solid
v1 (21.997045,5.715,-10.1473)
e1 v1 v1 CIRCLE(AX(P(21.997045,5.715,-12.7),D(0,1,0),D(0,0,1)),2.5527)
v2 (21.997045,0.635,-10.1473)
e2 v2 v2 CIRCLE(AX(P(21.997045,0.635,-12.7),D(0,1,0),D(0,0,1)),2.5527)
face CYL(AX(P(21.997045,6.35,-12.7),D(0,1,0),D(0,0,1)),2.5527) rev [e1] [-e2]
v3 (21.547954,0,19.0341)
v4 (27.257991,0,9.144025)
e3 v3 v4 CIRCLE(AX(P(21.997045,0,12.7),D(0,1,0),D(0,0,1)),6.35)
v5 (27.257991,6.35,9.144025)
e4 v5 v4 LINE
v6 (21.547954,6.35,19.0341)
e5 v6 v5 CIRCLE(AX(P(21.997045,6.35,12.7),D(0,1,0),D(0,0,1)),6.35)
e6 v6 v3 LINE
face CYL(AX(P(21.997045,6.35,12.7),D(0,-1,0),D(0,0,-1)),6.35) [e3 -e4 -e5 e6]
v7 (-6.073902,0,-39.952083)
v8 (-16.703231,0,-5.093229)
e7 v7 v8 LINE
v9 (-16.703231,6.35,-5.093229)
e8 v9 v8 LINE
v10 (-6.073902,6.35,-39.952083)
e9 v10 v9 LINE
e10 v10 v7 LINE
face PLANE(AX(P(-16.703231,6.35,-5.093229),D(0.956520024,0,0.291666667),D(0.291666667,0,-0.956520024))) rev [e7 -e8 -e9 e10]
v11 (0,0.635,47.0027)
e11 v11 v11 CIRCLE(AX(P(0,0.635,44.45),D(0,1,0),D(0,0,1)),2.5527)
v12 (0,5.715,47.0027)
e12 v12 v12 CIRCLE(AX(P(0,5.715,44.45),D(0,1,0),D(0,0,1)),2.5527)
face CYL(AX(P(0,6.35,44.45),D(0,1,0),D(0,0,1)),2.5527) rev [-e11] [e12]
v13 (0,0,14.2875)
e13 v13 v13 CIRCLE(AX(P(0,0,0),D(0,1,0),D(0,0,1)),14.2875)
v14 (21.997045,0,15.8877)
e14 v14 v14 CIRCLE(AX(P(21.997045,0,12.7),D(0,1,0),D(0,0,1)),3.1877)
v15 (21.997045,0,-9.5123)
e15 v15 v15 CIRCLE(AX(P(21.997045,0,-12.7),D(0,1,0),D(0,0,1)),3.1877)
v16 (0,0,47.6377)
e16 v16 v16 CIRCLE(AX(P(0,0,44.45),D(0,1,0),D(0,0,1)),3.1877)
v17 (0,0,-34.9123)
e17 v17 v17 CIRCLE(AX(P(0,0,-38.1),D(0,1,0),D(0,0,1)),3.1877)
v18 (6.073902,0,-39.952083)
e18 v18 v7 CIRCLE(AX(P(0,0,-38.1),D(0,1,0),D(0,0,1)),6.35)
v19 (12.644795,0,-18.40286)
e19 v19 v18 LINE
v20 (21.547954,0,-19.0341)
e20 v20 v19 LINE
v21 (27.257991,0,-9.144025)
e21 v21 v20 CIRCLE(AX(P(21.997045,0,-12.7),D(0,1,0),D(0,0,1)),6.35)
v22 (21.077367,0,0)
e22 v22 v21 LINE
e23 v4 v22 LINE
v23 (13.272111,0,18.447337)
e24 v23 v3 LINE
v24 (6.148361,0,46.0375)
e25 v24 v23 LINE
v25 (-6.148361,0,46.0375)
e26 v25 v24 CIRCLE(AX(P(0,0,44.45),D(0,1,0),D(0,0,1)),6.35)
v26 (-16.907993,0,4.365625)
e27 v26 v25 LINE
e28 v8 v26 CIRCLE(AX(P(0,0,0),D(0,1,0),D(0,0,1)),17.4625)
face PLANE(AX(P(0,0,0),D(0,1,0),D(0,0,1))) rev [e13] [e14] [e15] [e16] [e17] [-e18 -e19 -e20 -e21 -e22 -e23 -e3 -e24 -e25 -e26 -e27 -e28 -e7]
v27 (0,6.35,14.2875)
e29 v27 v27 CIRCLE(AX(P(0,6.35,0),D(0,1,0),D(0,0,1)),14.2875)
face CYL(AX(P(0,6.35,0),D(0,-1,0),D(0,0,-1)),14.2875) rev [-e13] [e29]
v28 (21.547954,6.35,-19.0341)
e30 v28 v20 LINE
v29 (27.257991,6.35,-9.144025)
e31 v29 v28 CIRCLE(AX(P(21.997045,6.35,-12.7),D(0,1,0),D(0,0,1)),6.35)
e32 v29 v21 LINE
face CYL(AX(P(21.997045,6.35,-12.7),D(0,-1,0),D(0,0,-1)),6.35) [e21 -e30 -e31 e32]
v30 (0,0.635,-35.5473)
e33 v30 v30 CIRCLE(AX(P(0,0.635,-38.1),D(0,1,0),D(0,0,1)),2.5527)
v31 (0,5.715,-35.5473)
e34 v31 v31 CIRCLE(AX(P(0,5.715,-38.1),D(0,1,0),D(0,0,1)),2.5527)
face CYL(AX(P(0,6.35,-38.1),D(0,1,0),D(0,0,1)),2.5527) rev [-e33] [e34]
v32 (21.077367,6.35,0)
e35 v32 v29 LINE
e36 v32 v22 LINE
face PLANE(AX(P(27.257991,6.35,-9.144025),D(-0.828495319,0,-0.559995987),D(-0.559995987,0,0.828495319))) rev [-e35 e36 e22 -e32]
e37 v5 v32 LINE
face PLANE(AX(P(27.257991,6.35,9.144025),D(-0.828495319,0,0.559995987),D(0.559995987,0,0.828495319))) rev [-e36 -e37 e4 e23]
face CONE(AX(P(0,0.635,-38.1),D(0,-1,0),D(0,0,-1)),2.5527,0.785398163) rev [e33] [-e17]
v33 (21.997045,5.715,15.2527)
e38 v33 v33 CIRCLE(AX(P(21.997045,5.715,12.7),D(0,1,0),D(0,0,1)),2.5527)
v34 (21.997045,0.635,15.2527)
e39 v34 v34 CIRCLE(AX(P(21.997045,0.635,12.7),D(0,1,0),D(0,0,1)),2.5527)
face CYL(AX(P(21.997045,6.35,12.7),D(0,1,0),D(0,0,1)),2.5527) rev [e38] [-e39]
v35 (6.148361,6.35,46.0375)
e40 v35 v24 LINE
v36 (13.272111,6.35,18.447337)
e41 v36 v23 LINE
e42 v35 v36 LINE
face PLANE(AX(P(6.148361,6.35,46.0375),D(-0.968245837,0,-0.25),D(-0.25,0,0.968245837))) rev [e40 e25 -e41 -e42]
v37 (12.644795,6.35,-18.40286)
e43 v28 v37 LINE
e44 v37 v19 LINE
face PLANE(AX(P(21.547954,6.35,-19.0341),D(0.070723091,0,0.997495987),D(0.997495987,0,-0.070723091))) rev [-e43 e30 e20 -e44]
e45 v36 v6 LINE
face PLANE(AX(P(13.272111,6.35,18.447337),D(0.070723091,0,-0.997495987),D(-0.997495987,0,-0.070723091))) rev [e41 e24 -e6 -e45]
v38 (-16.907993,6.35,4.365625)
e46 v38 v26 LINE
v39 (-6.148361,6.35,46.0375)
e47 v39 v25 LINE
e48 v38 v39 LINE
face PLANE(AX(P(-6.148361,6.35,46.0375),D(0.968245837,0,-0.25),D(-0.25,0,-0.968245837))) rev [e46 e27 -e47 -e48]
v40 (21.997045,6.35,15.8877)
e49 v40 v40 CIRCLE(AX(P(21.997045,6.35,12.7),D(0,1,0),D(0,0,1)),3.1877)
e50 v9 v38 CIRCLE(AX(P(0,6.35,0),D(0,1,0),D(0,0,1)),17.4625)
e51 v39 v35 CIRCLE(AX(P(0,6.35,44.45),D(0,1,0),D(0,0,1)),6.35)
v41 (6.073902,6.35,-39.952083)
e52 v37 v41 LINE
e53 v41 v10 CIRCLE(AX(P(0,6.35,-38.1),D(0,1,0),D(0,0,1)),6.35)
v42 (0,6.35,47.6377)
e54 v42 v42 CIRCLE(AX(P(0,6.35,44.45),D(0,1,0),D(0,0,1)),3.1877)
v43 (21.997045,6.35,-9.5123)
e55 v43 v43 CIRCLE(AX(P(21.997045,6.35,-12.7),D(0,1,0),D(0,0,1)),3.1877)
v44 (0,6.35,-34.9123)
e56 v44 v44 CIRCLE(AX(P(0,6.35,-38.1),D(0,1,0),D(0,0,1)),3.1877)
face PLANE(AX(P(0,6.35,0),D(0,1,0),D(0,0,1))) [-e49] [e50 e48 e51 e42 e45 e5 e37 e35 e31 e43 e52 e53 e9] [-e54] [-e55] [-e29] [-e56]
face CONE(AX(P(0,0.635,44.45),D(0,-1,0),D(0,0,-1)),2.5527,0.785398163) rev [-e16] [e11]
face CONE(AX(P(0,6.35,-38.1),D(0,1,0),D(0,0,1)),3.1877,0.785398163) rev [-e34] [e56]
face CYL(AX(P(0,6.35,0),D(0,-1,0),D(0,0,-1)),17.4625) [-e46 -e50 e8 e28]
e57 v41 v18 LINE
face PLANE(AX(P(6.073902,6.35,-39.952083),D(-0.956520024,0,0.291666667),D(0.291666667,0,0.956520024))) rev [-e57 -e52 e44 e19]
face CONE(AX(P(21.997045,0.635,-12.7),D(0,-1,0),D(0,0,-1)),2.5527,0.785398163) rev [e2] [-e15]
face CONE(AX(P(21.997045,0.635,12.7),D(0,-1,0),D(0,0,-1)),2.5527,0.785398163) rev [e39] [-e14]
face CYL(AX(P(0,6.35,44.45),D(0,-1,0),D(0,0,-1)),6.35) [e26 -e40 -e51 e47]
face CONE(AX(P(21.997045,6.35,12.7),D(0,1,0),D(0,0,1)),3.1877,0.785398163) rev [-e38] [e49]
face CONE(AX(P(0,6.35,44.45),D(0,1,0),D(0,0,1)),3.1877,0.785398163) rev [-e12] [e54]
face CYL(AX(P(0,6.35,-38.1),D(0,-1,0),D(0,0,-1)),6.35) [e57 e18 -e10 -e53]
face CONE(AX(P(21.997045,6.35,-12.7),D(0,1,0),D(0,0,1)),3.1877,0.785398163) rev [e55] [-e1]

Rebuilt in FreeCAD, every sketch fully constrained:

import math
import FreeCAD as App
import Part
import Sketcher

V = App.Vector
Q = App.Units.Quantity

doc = App.newDocument("Part")
params = doc.addObject("Spreadsheet::Sheet", "Params")
for row, (alias, value) in enumerate([
    ("sketch1_radius", "0.25 in"),
    ("sketch1_diameter", "1.125 in"),
    ("sketch1_radius2", "0.6875 in"),
    ("pad1_length", "0.25 in"),
    ("sketch2_width", "0.2 in"),
    ("sketch2_width2", "0.25 in"),
    ("groove_angle", "360 deg"),
    ("linearpattern_pitch", "38.625542 mm"),
    ("linearpattern2_pitch", "61.237182 mm"),
    ("linearpattern3_pitch", "3.25 in"),
], start=1):
    params.set(f"A{row}", alias)
    params.set(f"B{row}", "=" + value)
    params.setAlias(f"B{row}", alias)

body = doc.addObject("PartDesign::Body", "Body")

# Sketch on XZ plane
sketch1 = body.newObject("Sketcher::SketchObject", "Sketch")
sketch1.AttachmentSupport = (doc.getObject("XZ_Plane"), [""])
sketch1.MapMode = "FlatFace"
sketch1.addGeometry([
    Part.LineSegment(V(-6, -40, 0), V(-17, -5, 0)),  # 0
    Part.ArcOfCircle(Part.Circle(V(0, 0, 0), V(0, 0, 1), 17), math.radians(166), math.radians(197)),  # 1
    Part.LineSegment(V(-17, 4, 0), V(-6, 46, 0)),  # 2
    Part.ArcOfCircle(Part.Circle(V(0, 44, 0), V(0, 0, 1), 6), math.radians(14), math.radians(166)),  # 3
    Part.LineSegment(V(6, 46, 0), V(13, 18, 0)),  # 4
    Part.LineSegment(V(13, 18, 0), V(22, 19, 0)),  # 5
    Part.ArcOfCircle(Part.Circle(V(22, 13, 0), V(0, 0, 1), 6), math.radians(-34), math.radians(94)),  # 6
    Part.LineSegment(V(27, 9, 0), V(21, 0, 0)),  # 7
    Part.LineSegment(V(21, 0, 0), V(27, -9, 0)),  # 8
    Part.ArcOfCircle(Part.Circle(V(22, -13, 0), V(0, 0, 1), 6), math.radians(-94), math.radians(34)),  # 9
    Part.LineSegment(V(22, -19, 0), V(13, -18, 0)),  # 10
    Part.LineSegment(V(13, -18, 0), V(6, -40, 0)),  # 11
    Part.ArcOfCircle(Part.Circle(V(0, -38, 0), V(0, 0, 1), 6), math.radians(-163), math.radians(-17)),  # 12
    Part.Circle(V(0, 0, 0), V(0, 0, 1), 14),  # 13
], False)
sketch1.addConstraint([
    Sketcher.Constraint("Tangent", 0, 2, 1, 2),
    Sketcher.Constraint("Tangent", 1, 1, 2, 1),
    Sketcher.Constraint("Tangent", 2, 2, 3, 2),
    Sketcher.Constraint("Tangent", 3, 1, 4, 1),
    Sketcher.Constraint("Coincident", 4, 2, 5, 1),
    Sketcher.Constraint("Tangent", 5, 2, 6, 2),
    Sketcher.Constraint("Tangent", 6, 1, 7, 1),
    Sketcher.Constraint("Coincident", 7, 2, 8, 1),
    Sketcher.Constraint("Tangent", 8, 2, 9, 2),
    Sketcher.Constraint("Tangent", 9, 1, 10, 1),
    Sketcher.Constraint("Coincident", 10, 2, 11, 1),
    Sketcher.Constraint("Tangent", 11, 2, 12, 2),
    Sketcher.Constraint("Tangent", 12, 1, 0, 1),
    Sketcher.Constraint("Coincident", 1, 3, -1, 1),
    Sketcher.Constraint("Coincident", 13, 3, -1, 1),
    Sketcher.Constraint("Equal", 3, 6),
    Sketcher.Constraint("Equal", 6, 9),
    Sketcher.Constraint("Equal", 9, 12),
    Sketcher.Constraint("Symmetric", 2, 2, 3, 1, -2),
    Sketcher.Constraint("Symmetric", 11, 2, 12, 1, -2),
    Sketcher.Constraint("Symmetric", 6, 3, 9, 3, -1),
    Sketcher.Constraint("PointOnObject", 7, 2, -1),
    Sketcher.Constraint("Vertical", 5, 2, 9, 1),
    Sketcher.Constraint("Radius", 3, Q("0.25 in")),
    Sketcher.Constraint("Diameter", 13, Q("1.125 in")),
    Sketcher.Constraint("Radius", 1, Q("0.6875 in")),
    Sketcher.Constraint("DistanceY", 9, 3, 6, 3, Q("1 in")),
    Sketcher.Constraint("DistanceY", 12, 3, 9, 3, Q("1 in")),
    Sketcher.Constraint("DistanceY", -1, 1, 3, 3, Q("1.75 in")),
    Sketcher.Constraint("DistanceY", 8, 2, 5, 2, Q("1.109375 in")),
    Sketcher.Constraint("DistanceY", -1, 1, 5, 2, Q("19.0341 mm")),
    Sketcher.Constraint("Distance", 10, Q("8.925509 mm")),
])
sketch1.setExpression("Constraints[23]", "Params.sketch1_radius")
sketch1.setExpression("Constraints[24]", "Params.sketch1_diameter")
sketch1.setExpression("Constraints[25]", "Params.sketch1_radius2")
pad1 = body.newObject("PartDesign::Pad", "Pad")
pad1.Profile = sketch1
pad1.setExpression("Length", "Params.pad1_length")
pad1.Reversed = True

# Sketch on YZ plane
sketch2 = body.newObject("Sketcher::SketchObject", "Sketch001")
sketch2.AttachmentSupport = (doc.getObject("YZ_Plane"), [""])
sketch2.MapMode = "FlatFace"
sketch2.addGeometry([
    Part.LineSegment(V(0, 44.5, 0), V(6.3, 44.5, 0)),  # 0
    Part.LineSegment(V(6.3, 44.5, 0), V(6.3, 47.6, 0)),  # 1
    Part.LineSegment(V(6.3, 47.6, 0), V(5.7, 47, 0)),  # 2
    Part.LineSegment(V(5.7, 47, 0), V(0.6, 47, 0)),  # 3
    Part.LineSegment(V(0.6, 47, 0), V(0, 47.6, 0)),  # 4
    Part.LineSegment(V(0, 47.6, 0), V(0, 44.5, 0)),  # 5
], False)
sketch2.addGeometry(Part.LineSegment(V(6.3, 44.5, 0), V(0, 44.5, 0)), True)  # axis
sketch2.addConstraint([
    Sketcher.Constraint("Coincident", 0, 2, 1, 1),
    Sketcher.Constraint("Coincident", 1, 2, 2, 1),
    Sketcher.Constraint("Coincident", 2, 2, 3, 1),
    Sketcher.Constraint("Coincident", 3, 2, 4, 1),
    Sketcher.Constraint("Coincident", 4, 2, 5, 1),
    Sketcher.Constraint("Coincident", 5, 2, 0, 1),
    Sketcher.Constraint("Horizontal", 0),
    Sketcher.Constraint("Vertical", 1),
    Sketcher.Constraint("Horizontal", 3),
    Sketcher.Constraint("Vertical", 5),
    Sketcher.Constraint("Horizontal", 6),
    Sketcher.Constraint("Coincident", 6, 1, 0, 2),
    Sketcher.Constraint("PointOnObject", 4, 2, -2),
    Sketcher.Constraint("PointOnObject", 6, 2, -2),
    Sketcher.Constraint("Perpendicular", 2, 4),
    Sketcher.Constraint("Horizontal", 1, 2, 4, 2),
    Sketcher.Constraint("Equal", 2, 4),
    Sketcher.Constraint("DistanceX", 3, 2, 3, 1, Q("0.2 in")),
    Sketcher.Constraint("DistanceX", 0, 1, 0, 2, Q("0.25 in")),
    Sketcher.Constraint("DistanceY", -1, 1, 0, 2, Q("1.75 in")),
    Sketcher.Constraint("DistanceY", 1, 1, 1, 2, Q("0.1255 in")),
])
sketch2.setExpression("Constraints[17]", "Params.sketch2_width")
sketch2.setExpression("Constraints[18]", "Params.sketch2_width2")
groove = body.newObject("PartDesign::Groove", "Groove")
groove.Profile = sketch2
groove.ReferenceAxis = (sketch2, ["Axis0"])
groove.setExpression("Angle", "Params.groove_angle")
doc.recompute()

datumline = body.newObject("PartDesign::Line", "DatumLine")
datumline.Placement = App.Placement(V(0, 0, 0), App.Rotation(V(0, 0, 1), V(0.569494797, 0, -0.821994937)))
linearpattern = body.newObject("PartDesign::LinearPattern", "LinearPattern")
linearpattern.Originals = [groove]
linearpattern.Direction = (datumline, [""])
linearpattern.Mode = "offset"
linearpattern.setExpression("Offset", "Params.linearpattern_pitch")
linearpattern.Occurrences = 2
body.Tip = linearpattern
doc.recompute()

datumline2 = body.newObject("PartDesign::Line", "DatumLine001")
datumline2.Placement = App.Placement(V(0, 0, 0), App.Rotation(V(0, 0, 1), V(0.359210604, 0, -0.933256525)))
linearpattern2 = body.newObject("PartDesign::LinearPattern", "LinearPattern001")
linearpattern2.Originals = [groove]
linearpattern2.Direction = (datumline2, [""])
linearpattern2.Mode = "offset"
linearpattern2.setExpression("Offset", "Params.linearpattern2_pitch")
linearpattern2.Occurrences = 2
body.Tip = linearpattern2
doc.recompute()

linearpattern3 = body.newObject("PartDesign::LinearPattern", "LinearPattern002")
linearpattern3.Originals = [groove]
linearpattern3.Direction = (doc.getObject("Z_Axis"), [""])
linearpattern3.Mode = "offset"
linearpattern3.setExpression("Offset", "Params.linearpattern3_pitch")
linearpattern3.Occurrences = 2
linearpattern3.Reversed = True
body.Tip = linearpattern3

doc.recompute()
